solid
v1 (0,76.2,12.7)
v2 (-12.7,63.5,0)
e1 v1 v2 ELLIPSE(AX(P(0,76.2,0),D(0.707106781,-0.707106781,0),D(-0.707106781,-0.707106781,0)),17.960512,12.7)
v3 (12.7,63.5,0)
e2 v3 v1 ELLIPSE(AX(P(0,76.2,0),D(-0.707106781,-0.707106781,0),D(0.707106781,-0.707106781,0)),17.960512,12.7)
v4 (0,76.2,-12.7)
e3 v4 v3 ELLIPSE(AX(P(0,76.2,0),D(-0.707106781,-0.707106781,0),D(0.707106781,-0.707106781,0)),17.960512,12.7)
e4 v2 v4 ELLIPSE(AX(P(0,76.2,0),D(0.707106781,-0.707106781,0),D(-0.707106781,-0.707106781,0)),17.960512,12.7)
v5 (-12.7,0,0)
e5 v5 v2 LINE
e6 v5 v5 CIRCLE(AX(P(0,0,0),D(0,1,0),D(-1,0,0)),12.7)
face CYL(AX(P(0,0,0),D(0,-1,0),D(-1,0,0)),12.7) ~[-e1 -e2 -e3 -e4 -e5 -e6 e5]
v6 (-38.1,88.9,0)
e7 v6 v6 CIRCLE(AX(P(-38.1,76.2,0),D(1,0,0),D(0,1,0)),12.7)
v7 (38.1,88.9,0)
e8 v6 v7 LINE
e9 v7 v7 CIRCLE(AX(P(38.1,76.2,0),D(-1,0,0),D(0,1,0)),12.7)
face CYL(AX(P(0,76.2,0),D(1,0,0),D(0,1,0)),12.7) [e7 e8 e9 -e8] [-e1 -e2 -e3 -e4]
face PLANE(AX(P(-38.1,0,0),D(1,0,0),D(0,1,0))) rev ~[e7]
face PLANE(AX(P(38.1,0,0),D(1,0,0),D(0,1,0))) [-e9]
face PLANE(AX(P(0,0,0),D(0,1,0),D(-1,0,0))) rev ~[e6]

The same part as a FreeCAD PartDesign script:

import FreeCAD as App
import Part
import Sketcher

V = App.Vector
Q = App.Units.Quantity

doc = App.newDocument("Part")
body = doc.addObject("PartDesign::Body", "Body")

# Sketch on XZ plane
sketch1 = body.newObject("Sketcher::SketchObject", "Sketch")
sketch1.AttachmentSupport = (doc.getObject("XZ_Plane"), [""])
sketch1.MapMode = "FlatFace"
sketch1.addGeometry(Part.Circle(V(0, 0, 0), V(0, 0, 1), 13), False)
sketch1.addConstraint([
    Sketcher.Constraint("Coincident", 0, 3, -1, 1),
    Sketcher.Constraint("Diameter", 0, Q("1 in")),
])
pad1 = body.newObject("PartDesign::Pad", "Pad")
pad1.Profile = sketch1
pad1.Length = Q("3 in")
pad1.Reversed = True

# Sketch on YZ plane
sketch2 = body.newObject("Sketcher::SketchObject", "Sketch001")
sketch2.AttachmentSupport = (doc.getObject("YZ_Plane"), [""])
sketch2.MapMode = "FlatFace"
sketch2.addGeometry(Part.Circle(V(76, 0, 0), V(0, 0, 1), 13), False)
sketch2.addConstraint([
    Sketcher.Constraint("PointOnObject", 0, 3, -1),
    Sketcher.Constraint("Diameter", 0, Q("1 in")),
    Sketcher.Constraint("DistanceX", -1, 1, 0, 3, Q("3 in")),
])
pad2 = body.newObject("PartDesign::Pad", "Pad001")
pad2.Profile = sketch2
pad2.Length = Q("3 in")
pad2.Midplane = True

doc.recompute()
